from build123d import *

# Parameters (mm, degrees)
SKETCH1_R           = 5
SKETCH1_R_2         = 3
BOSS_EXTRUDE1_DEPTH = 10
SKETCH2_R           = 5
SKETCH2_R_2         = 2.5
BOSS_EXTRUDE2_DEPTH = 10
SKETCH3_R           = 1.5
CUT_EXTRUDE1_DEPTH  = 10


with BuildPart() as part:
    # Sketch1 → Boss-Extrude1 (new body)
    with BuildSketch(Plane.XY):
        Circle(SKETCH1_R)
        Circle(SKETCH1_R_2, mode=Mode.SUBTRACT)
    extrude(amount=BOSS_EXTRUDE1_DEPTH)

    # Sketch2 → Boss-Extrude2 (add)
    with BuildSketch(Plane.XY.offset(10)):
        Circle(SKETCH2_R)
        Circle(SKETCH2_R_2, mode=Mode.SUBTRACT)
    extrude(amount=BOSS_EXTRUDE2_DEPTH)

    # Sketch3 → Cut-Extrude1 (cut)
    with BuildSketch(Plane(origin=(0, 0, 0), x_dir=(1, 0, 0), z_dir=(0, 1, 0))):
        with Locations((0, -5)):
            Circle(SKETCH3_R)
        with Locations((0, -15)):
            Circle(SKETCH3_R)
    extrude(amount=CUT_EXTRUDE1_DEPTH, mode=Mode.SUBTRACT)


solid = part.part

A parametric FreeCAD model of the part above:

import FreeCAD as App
import Part
import Sketcher

doc = App.newDocument("Part")
params = doc.addObject("Spreadsheet::Sheet", "Params")
for row, (alias, value) in enumerate([
    ("sketch1_diameter", "10 mm"),
    ("sketch1_diameter2", "6 mm"),
    ("pad1_length", "10 mm"),
    ("sketch2_diameter", "10 mm"),
    ("sketch2_diameter2", "5 mm"),
    ("pad2_length", "10 mm"),
    ("sketch3_diameter", "3 mm"),
    ("pocket1_length", "10 mm"),
], start=1):
    params.set(f"A{row}", alias)
    params.set(f"B{row}", "=" + value)
    params.setAlias(f"B{row}", alias)

body = doc.addObject("PartDesign::Body", "Body")

sketch1 = body.newObject("Sketcher::SketchObject", "Sketch")
sketch1.AttachmentSupport = (doc.getObject("XY_Plane"), [""])
sketch1.MapMode = "FlatFace"
sketch1.addGeometry(Part.Circle(App.Vector(0, 0, 0), App.Vector(0, 0, 1), 5), False)
sketch1.addGeometry(Part.Circle(App.Vector(0, 0, 0), App.Vector(0, 0, 1), 3), False)
sketch1.addConstraint(Sketcher.Constraint("Coincident", 0, 3, -1, 1))
sketch1.addConstraint(Sketcher.Constraint("Coincident", 1, 3, -1, 1))
sketch1.addConstraint(Sketcher.Constraint("Diameter", 0, 10.0))
sketch1.addConstraint(Sketcher.Constraint("Diameter", 1, 6.0))
sketch1.setExpression("Constraints[2]", "Params.sketch1_diameter")
sketch1.setExpression("Constraints[3]", "Params.sketch1_diameter2")
pad1 = body.newObject("PartDesign::Pad", "Pad")
pad1.Profile = sketch1
pad1.setExpression("Length", "Params.pad1_length")

sketch2 = body.newObject("Sketcher::SketchObject", "Sketch001")
sketch2.AttachmentSupport = (doc.getObject("XY_Plane"), [""])
sketch2.MapMode = "FlatFace"
sketch2.AttachmentOffset = App.Placement(App.Vector(0, 0, 10), App.Rotation())
sketch2.addGeometry(Part.Circle(App.Vector(0, 0, 0), App.Vector(0, 0, 1), 5), False)
sketch2.addGeometry(Part.Circle(App.Vector(0, 0, 0), App.Vector(0, 0, 1), 2.5), False)
sketch2.addConstraint(Sketcher.Constraint("Coincident", 0, 3, -1, 1))
sketch2.addConstraint(Sketcher.Constraint("Coincident", 1, 3, -1, 1))
sketch2.addConstraint(Sketcher.Constraint("Diameter", 0, 10.0))
sketch2.addConstraint(Sketcher.Constraint("Diameter", 1, 5.0))
sketch2.setExpression("Constraints[2]", "Params.sketch2_diameter")
sketch2.setExpression("Constraints[3]", "Params.sketch2_diameter2")
pad2 = body.newObject("PartDesign::Pad", "Pad001")
pad2.Profile = sketch2
pad2.setExpression("Length", "Params.pad2_length")

sketch3 = body.newObject("Sketcher::SketchObject", "Sketch002")
sketch3.AttachmentSupport = (doc.getObject("XZ_Plane"), [""])
sketch3.MapMode = "FlatFace"
sketch3.addGeometry(Part.Circle(App.Vector(0, 5, 0), App.Vector(0, 0, 1), 1.5), False)
sketch3.addGeometry(Part.Circle(App.Vector(0, 15, 0), App.Vector(0, 0, 1), 1.5), False)
sketch3.addConstraint(Sketcher.Constraint("Equal", 0, 1))
sketch3.addConstraint(Sketcher.Constraint("PointOnObject", 0, 3, -2))
sketch3.addConstraint(Sketcher.Constraint("PointOnObject", 1, 3, -2))
sketch3.addConstraint(Sketcher.Constraint("Diameter", 0, 3.0))
sketch3.addConstraint(Sketcher.Constraint("DistanceY", -1, 1, 0, 3, 5.0))
sketch3.addConstraint(Sketcher.Constraint("DistanceY", -1, 1, 1, 3, 15.0))
sketch3.setExpression("Constraints[3]", "Params.sketch3_diameter")
pocket1 = body.newObject("PartDesign::Pocket", "Pocket")
pocket1.Profile = sketch3
pocket1.setExpression("Length", "Params.pocket1_length")

doc.recompute()
